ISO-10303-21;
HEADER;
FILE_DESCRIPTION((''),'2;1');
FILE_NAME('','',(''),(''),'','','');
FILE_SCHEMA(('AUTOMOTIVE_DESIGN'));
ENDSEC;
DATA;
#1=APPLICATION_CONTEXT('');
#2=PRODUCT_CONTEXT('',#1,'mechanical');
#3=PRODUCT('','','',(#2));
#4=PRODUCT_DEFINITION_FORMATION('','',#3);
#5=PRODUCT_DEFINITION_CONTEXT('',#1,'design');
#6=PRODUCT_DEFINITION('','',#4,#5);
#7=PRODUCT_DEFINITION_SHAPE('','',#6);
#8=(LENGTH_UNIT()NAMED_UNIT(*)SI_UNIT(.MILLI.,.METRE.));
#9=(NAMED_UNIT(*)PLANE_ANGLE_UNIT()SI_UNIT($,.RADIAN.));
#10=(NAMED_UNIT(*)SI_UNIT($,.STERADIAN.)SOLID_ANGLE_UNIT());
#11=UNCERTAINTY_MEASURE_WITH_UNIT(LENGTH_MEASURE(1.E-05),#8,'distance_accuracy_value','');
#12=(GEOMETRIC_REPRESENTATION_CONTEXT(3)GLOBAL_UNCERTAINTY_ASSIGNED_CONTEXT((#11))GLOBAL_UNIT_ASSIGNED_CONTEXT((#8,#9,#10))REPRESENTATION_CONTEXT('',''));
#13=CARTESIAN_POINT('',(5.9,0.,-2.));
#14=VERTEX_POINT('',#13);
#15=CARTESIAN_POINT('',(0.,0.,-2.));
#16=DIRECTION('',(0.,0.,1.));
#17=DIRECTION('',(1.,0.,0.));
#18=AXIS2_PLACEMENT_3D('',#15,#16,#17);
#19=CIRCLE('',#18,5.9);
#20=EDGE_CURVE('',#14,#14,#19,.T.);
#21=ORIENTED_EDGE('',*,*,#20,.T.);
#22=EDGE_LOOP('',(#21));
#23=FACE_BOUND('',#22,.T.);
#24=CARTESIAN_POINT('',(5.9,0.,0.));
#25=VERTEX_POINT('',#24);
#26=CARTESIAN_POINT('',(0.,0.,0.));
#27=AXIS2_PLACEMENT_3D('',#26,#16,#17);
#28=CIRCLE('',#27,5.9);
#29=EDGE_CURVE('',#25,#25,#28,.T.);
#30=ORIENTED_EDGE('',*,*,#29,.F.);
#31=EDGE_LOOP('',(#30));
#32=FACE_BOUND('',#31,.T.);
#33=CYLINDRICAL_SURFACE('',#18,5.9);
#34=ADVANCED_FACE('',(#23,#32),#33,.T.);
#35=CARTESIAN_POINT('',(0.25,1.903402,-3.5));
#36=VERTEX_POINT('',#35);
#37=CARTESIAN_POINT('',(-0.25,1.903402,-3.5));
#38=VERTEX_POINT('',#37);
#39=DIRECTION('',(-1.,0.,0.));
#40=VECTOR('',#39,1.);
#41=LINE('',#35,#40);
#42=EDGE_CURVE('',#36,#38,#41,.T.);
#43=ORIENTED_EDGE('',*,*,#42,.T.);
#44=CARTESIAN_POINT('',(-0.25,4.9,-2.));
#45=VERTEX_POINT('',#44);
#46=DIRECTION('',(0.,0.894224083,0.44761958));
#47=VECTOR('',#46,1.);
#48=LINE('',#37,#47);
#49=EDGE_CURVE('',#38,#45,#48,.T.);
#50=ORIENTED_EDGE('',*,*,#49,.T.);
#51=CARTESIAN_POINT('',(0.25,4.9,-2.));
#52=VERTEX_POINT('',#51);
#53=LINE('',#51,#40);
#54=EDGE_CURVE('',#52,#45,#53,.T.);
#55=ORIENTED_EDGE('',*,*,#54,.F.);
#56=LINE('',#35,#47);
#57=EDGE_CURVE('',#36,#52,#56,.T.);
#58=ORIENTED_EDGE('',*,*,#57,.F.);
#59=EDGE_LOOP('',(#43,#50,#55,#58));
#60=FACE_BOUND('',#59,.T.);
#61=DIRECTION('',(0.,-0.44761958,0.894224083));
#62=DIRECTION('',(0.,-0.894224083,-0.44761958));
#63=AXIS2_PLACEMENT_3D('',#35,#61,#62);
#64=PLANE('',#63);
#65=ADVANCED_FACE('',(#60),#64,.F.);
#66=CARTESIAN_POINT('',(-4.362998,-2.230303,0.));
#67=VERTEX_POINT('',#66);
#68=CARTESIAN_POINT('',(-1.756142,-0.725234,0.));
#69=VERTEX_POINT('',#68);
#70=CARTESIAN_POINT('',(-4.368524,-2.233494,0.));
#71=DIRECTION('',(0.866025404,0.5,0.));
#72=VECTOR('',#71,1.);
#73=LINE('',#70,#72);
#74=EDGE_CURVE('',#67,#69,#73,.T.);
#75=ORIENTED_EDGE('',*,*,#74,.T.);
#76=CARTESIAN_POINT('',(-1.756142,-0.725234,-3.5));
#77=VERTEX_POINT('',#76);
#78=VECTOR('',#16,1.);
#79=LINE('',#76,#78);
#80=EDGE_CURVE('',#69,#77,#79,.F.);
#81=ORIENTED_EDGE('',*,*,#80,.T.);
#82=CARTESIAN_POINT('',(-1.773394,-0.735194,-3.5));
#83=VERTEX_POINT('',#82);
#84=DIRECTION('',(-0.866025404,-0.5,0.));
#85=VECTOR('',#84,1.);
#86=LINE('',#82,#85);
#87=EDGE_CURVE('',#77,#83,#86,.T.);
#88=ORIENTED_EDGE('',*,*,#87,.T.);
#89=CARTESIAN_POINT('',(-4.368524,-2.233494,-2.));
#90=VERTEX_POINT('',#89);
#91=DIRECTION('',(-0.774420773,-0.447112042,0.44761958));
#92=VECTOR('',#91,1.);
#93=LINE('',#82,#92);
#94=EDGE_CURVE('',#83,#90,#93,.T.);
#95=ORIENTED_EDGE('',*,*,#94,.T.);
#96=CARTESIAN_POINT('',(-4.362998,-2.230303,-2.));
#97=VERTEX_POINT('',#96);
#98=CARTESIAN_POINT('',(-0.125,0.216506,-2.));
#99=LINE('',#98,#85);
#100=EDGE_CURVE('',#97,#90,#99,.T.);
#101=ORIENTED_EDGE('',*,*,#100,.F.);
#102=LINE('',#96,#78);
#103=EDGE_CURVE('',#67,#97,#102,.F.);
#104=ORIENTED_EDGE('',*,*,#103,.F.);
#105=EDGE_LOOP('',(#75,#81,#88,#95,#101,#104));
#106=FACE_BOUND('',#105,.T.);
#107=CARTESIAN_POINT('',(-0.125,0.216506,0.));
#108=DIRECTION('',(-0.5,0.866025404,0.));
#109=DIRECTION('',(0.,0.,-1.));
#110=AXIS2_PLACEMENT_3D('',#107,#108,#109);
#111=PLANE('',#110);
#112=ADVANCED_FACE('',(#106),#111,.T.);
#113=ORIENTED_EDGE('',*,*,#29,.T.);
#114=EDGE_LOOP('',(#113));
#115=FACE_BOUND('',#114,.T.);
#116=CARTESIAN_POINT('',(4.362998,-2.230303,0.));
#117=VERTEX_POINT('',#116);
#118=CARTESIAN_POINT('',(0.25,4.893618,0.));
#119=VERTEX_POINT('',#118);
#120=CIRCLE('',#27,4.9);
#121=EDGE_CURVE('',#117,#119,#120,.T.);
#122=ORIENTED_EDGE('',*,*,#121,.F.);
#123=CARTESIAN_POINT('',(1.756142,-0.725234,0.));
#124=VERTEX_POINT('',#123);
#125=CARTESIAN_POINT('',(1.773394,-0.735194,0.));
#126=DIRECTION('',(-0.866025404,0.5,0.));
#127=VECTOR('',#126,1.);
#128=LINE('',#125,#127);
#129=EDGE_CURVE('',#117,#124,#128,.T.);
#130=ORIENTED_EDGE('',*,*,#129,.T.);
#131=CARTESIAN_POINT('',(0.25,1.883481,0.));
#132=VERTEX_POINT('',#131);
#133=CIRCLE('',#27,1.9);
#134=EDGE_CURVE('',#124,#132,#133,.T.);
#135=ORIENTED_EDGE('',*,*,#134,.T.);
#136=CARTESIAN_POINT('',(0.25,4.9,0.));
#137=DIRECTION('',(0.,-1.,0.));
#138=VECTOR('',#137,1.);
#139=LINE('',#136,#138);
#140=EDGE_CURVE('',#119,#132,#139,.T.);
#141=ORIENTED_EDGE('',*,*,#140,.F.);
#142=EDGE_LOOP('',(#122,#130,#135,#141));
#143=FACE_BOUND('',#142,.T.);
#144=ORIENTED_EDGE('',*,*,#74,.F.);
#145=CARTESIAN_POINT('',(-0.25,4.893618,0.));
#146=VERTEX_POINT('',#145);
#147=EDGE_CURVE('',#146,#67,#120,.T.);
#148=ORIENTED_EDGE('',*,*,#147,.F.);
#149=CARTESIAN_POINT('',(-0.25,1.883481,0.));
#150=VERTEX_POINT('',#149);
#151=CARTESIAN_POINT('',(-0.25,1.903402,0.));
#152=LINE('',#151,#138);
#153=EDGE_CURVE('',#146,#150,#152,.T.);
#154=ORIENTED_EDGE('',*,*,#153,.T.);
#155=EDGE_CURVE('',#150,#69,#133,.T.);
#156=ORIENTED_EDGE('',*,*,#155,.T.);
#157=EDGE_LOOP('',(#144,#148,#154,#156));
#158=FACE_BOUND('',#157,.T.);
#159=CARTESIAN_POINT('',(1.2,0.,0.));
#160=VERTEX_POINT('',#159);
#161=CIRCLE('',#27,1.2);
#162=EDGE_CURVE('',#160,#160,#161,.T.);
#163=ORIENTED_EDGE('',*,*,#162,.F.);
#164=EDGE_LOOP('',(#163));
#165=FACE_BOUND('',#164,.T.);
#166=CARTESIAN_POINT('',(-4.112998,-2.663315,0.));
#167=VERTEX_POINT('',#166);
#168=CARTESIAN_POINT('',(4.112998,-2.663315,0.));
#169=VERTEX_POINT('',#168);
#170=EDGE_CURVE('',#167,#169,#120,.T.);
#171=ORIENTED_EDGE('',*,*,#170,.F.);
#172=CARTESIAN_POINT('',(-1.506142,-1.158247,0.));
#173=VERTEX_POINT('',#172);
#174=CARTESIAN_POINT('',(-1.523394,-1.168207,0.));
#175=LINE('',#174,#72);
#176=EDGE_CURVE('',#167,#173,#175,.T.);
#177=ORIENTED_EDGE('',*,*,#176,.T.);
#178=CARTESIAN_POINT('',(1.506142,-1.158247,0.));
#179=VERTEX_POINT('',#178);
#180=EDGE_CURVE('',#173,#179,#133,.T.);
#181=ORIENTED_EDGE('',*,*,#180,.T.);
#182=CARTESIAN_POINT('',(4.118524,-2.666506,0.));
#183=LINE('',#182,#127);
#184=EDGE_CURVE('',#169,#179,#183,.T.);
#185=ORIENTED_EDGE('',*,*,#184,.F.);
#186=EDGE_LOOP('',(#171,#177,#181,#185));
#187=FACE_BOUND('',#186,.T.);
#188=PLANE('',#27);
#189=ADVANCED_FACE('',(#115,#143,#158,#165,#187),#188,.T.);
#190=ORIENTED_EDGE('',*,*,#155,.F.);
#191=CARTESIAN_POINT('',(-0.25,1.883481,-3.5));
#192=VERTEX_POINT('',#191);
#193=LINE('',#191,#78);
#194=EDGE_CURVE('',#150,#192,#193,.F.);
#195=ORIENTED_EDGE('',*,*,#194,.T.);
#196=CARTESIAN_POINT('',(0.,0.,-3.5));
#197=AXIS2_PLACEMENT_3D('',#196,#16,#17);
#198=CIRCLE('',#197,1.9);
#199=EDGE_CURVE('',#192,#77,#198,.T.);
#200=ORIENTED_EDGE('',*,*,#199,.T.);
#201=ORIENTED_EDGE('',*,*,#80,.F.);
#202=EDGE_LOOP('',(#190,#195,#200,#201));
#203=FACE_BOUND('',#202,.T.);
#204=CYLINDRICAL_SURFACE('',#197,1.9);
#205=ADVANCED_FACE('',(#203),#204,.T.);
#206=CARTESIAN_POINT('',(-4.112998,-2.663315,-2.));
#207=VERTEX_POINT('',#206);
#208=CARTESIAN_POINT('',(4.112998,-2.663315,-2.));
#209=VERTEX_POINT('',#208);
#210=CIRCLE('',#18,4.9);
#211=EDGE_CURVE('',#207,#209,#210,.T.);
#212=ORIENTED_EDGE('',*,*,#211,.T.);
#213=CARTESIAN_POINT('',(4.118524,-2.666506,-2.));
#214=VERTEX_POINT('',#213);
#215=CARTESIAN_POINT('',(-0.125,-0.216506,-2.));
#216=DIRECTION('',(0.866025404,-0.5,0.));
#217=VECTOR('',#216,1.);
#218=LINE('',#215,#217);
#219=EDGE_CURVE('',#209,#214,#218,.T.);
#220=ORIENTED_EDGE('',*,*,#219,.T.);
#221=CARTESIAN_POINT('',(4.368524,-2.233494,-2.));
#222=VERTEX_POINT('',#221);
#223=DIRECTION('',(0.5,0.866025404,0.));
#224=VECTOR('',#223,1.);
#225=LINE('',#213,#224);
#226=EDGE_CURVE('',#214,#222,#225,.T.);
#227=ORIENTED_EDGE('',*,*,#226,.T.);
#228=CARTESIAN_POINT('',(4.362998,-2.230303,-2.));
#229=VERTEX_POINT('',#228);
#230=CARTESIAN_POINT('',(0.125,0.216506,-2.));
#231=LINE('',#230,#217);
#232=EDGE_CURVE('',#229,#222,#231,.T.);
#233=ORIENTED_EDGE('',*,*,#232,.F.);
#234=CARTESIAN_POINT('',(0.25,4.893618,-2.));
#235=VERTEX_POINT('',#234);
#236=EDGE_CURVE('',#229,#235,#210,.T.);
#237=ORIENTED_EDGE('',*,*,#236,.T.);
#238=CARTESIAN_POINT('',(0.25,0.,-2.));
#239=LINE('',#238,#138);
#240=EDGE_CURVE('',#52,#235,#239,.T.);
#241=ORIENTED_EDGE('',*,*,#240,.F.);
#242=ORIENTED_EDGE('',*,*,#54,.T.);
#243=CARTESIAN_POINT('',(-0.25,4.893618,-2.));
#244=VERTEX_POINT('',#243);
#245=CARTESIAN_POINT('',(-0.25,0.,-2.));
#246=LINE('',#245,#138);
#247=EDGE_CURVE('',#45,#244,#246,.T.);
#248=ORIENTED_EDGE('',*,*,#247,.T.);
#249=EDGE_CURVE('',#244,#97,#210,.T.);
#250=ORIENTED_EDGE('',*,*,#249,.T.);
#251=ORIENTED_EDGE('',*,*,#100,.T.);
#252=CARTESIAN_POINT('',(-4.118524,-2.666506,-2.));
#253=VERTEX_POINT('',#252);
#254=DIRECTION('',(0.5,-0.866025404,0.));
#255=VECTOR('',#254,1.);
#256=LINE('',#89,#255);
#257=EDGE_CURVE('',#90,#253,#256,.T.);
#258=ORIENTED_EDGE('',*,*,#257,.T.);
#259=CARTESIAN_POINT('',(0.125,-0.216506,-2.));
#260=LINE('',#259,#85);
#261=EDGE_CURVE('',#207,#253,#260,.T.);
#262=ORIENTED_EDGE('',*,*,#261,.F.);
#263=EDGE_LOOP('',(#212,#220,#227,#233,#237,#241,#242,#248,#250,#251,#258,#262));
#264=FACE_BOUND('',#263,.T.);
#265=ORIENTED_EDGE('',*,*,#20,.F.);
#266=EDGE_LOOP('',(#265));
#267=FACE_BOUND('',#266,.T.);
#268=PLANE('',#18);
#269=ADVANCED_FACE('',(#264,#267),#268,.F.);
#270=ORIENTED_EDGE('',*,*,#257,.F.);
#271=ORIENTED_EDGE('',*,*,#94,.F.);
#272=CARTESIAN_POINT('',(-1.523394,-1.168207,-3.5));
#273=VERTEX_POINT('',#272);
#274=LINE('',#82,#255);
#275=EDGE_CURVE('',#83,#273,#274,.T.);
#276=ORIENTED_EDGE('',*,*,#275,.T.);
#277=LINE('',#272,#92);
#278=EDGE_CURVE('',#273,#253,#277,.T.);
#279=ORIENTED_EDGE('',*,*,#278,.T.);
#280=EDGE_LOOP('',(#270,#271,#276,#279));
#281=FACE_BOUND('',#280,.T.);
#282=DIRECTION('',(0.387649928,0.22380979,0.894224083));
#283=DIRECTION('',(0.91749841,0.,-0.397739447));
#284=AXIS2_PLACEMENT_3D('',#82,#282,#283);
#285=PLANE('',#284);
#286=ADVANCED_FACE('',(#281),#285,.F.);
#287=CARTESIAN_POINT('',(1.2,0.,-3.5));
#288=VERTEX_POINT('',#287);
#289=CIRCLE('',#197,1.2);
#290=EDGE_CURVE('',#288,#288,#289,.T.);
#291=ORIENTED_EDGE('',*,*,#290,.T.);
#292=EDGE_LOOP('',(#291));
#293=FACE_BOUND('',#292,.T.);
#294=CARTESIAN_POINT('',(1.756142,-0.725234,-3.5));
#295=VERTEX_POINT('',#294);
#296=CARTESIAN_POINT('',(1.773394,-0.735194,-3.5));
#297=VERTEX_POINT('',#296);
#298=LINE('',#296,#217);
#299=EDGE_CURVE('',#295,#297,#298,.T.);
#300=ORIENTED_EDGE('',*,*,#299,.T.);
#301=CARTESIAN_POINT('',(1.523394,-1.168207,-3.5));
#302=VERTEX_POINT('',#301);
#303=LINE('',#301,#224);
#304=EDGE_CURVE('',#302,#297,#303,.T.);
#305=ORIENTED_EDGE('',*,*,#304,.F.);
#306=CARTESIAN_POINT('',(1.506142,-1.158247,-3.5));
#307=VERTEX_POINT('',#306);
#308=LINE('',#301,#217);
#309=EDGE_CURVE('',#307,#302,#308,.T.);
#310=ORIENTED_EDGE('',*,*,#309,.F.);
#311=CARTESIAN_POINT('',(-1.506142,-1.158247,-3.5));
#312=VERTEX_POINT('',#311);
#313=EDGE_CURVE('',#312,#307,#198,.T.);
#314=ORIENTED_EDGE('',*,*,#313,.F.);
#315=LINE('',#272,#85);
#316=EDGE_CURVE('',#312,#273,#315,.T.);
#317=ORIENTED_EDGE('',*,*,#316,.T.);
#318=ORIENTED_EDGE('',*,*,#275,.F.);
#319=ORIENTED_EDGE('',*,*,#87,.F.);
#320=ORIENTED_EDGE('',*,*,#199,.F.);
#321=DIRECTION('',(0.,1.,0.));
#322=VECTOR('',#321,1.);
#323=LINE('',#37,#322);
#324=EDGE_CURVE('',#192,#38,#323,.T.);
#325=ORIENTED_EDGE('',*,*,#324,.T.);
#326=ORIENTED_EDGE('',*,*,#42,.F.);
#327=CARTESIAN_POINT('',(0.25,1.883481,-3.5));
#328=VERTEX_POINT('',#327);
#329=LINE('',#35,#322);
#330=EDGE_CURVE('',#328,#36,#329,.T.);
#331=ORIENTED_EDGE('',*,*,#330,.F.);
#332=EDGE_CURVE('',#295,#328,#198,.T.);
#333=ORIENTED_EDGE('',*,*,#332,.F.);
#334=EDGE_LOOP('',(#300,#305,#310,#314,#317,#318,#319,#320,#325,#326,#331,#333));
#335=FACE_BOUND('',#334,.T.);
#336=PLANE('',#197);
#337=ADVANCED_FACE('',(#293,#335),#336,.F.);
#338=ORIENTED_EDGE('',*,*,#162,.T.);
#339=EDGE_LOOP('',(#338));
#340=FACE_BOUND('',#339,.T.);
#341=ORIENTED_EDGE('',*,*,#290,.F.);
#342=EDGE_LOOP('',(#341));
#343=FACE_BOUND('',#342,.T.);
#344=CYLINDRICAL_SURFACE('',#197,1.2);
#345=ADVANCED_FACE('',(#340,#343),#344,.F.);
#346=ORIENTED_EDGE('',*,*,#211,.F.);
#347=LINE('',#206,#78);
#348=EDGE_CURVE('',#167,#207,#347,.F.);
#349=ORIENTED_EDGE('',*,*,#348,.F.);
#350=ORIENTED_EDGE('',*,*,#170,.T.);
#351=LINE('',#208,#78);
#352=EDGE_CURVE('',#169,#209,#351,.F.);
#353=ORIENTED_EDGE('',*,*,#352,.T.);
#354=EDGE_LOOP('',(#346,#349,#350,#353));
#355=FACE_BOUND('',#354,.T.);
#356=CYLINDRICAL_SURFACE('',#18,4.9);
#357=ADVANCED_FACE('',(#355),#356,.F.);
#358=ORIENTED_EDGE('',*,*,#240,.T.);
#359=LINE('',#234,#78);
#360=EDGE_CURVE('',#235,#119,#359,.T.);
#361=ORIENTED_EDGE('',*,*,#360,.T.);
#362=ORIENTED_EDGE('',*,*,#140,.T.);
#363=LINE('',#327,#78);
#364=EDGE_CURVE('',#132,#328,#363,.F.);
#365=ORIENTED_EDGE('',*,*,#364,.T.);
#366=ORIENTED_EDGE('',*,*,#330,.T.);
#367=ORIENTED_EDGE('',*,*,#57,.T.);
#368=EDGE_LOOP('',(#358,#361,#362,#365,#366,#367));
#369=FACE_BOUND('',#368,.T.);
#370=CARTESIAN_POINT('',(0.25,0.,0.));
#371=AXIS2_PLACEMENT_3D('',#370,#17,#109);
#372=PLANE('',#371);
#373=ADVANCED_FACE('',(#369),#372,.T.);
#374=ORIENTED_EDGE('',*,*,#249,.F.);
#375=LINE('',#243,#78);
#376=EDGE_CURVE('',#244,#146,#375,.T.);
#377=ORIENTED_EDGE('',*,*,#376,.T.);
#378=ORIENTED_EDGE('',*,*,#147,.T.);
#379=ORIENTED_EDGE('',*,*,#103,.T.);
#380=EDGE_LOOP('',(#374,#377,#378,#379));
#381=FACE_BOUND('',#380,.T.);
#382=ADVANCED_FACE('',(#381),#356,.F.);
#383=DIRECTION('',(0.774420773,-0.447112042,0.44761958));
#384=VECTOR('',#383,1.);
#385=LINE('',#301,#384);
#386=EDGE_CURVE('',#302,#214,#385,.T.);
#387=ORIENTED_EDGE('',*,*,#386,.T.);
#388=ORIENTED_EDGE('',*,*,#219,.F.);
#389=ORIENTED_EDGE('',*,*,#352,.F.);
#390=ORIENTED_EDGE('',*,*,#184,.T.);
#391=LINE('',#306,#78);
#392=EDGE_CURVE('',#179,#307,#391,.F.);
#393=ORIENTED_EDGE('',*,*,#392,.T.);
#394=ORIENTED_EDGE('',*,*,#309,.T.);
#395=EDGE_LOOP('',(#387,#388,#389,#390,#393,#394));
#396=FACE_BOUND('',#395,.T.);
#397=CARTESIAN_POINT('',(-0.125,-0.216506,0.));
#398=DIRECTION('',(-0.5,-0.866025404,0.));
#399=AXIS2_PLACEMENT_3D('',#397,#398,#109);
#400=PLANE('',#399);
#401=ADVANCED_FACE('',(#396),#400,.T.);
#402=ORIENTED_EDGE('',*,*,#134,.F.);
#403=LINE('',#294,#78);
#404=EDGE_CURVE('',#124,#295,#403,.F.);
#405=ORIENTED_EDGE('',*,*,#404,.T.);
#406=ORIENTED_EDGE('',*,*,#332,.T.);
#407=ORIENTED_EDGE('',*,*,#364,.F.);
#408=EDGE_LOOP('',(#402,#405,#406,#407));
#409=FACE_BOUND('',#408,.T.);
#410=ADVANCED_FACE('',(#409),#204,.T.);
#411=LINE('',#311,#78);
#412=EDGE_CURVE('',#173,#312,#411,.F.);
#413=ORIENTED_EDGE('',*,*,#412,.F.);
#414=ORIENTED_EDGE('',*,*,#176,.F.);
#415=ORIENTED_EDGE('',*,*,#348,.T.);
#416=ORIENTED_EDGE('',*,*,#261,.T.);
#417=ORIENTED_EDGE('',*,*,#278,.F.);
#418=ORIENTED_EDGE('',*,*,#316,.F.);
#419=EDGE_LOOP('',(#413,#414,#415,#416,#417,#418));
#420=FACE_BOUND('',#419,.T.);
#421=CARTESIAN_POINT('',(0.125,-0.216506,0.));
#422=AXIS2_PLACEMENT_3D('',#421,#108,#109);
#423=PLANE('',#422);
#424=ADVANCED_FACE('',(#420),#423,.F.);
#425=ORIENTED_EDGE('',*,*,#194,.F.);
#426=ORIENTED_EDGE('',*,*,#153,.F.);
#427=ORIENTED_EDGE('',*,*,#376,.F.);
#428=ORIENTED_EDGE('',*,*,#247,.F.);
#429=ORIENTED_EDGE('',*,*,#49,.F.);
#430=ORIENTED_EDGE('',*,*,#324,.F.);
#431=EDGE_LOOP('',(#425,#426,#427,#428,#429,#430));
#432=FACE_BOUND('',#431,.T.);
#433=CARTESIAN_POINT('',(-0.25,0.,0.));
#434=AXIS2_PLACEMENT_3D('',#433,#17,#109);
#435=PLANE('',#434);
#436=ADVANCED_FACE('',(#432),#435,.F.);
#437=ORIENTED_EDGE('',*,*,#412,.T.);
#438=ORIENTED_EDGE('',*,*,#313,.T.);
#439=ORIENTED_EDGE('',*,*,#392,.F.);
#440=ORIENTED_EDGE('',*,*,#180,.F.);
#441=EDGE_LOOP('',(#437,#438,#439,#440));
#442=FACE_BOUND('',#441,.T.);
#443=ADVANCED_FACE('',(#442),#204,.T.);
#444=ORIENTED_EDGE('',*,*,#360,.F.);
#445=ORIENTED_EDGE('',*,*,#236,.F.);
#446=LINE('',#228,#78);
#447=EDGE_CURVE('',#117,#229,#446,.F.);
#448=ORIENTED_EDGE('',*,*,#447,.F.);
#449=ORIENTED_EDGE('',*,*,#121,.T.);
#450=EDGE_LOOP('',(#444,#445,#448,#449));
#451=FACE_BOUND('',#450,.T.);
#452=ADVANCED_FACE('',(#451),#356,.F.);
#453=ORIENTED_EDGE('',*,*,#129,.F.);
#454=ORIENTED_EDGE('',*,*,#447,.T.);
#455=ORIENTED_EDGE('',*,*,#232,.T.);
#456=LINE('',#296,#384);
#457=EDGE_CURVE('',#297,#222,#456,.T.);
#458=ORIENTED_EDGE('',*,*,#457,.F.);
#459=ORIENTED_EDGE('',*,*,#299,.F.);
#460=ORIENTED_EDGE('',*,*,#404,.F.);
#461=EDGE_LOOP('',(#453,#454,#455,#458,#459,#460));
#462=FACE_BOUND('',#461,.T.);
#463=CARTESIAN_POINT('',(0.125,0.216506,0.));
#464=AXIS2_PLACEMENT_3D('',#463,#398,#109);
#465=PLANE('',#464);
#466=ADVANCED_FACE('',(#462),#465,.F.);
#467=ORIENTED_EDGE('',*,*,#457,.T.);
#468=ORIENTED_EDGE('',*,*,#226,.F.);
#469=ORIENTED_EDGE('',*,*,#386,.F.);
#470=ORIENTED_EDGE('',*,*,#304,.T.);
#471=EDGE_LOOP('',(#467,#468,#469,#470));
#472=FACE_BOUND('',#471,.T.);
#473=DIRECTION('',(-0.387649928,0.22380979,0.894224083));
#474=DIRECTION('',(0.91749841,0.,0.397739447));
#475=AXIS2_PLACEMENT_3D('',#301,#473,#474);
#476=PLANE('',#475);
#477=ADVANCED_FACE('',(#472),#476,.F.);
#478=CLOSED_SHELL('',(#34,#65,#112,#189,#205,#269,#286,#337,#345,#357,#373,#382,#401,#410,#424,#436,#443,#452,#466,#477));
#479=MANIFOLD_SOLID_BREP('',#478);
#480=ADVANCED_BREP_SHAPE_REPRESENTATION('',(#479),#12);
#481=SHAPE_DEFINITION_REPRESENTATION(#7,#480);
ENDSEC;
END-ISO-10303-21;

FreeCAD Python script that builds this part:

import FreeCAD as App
import Part
import Sketcher

V = App.Vector

doc = App.newDocument("Part")
body = doc.addObject("PartDesign::Body", "Body")

# Sketch on XY plane
sketch1 = doc.addObject("Sketcher::SketchObject", "Sketch")
body.addObject(sketch1)
sketch1.AttachmentSupport = (doc.XY_Plane, [""])
sketch1.MapMode = "FlatFace"
sketch1.addGeometry([
    Part.Circle(V(0, 0, 0), V(0, 0, 1), 1.9),
    Part.Circle(V(0, 0, 0), V(0, 0, 1), 1.2),
], False)
sketch1.addConstraint([
    Sketcher.Constraint("Coincident", 0, 3, -1, 1),
    Sketcher.Constraint("Coincident", 1, 3, -1, 1),
    Sketcher.Constraint("Diameter", 0, 3.8),
    Sketcher.Constraint("Diameter", 1, 2.4),
])
pad1 = doc.addObject("PartDesign::Pad", "Pad")
body.addObject(pad1)
pad1.Profile = sketch1
pad1.Length = 3.5
pad1.Reversed = True
body2 = doc.addObject("PartDesign::Body", "Body001")

# Sketch on XY plane
sketch2 = doc.addObject("Sketcher::SketchObject", "Sketch001")
body2.addObject(sketch2)
sketch2.AttachmentSupport = (doc.getObject("XY_Plane001"), [""])
sketch2.MapMode = "FlatFace"
sketch2.addGeometry([
    Part.Circle(V(0, 0, 0), V(0, 0, 1), 5.9),
    Part.Circle(V(0, 0, 0), V(0, 0, 1), 4.9),
], False)
sketch2.addConstraint([
    Sketcher.Constraint("Coincident", 0, 3, -1, 1),
    Sketcher.Constraint("Coincident", 1, 3, -1, 1),
    Sketcher.Constraint("Diameter", 0, 11.8),
    Sketcher.Constraint("Diameter", 1, 9.8),
])
pad2 = doc.addObject("PartDesign::Pad", "Pad001")
body2.addObject(pad2)
pad2.Profile = sketch2
pad2.Length = 2
pad2.Reversed = True
body.AllowCompound = True
doc.recompute()

boolean = doc.addObject("PartDesign::Boolean", "Boolean")
body.addObject(boolean)
boolean.Type = "Fuse"
boolean.addObjects([body2])

# Sketch on YZ plane
sketch3 = doc.addObject("Sketcher::SketchObject", "Sketch002")
body.addObject(sketch3)
sketch3.AttachmentSupport = (doc.YZ_Plane, [""])
sketch3.MapMode = "FlatFace"
sketch3.addGeometry([
    Part.LineSegment(V(4.9, 0, 0), V(1.703402, 0, 0)),  # 0
    Part.LineSegment(V(1.703402, 0, 0), V(1.703402, -3.5, 0)),  # 1
    Part.LineSegment(V(1.703402, -3.5, 0), V(1.903402, -3.5, 0)),  # 2
    Part.LineSegment(V(1.903402, -3.5, 0), V(4.9, -2, 0)),  # 3
    Part.LineSegment(V(4.9, -2, 0), V(4.9, 0, 0)),  # 4
], False)
sketch3.addConstraint([
    Sketcher.Constraint("Coincident", 0, 2, 1, 1),
    Sketcher.Constraint("Coincident", 1, 2, 2, 1),
    Sketcher.Constraint("Coincident", 2, 2, 3, 1),
    Sketcher.Constraint("Coincident", 3, 2, 4, 1),
    Sketcher.Constraint("Coincident", 4, 2, 0, 1),
    Sketcher.Constraint("Horizontal", 0),
    Sketcher.Constraint("Vertical", 1),
    Sketcher.Constraint("Horizontal", 2),
    Sketcher.Constraint("Vertical", 4),
    Sketcher.Constraint("PointOnObject", 0, 2, -1),
    Sketcher.Constraint("DistanceY", 4, 1, 4, 2, 2.0),
    Sketcher.Constraint("DistanceX", 2, 1, 2, 2, 0.2),
    Sketcher.Constraint("DistanceY", 1, 2, 1, 1, 3.5),
    Sketcher.Constraint("DistanceX", -1, 1, 3, 2, 4.9),
    Sketcher.Constraint("DistanceX", 0, 2, 0, 1, 3.196598),
])
pad3 = doc.addObject("PartDesign::Pad", "Pad002")
body.addObject(pad3)
pad3.Profile = sketch3
pad3.Length = 0.5
pad3.Midplane = True
doc.recompute()

polarpattern = doc.addObject("PartDesign::PolarPattern", "PolarPattern")
body.addObject(polarpattern)
polarpattern.Originals = [pad3]
polarpattern.Axis = (doc.Z_Axis, [""])
polarpattern.Angle = 360
polarpattern.Occurrences = 3
body.Tip = polarpattern

doc.recompute()
